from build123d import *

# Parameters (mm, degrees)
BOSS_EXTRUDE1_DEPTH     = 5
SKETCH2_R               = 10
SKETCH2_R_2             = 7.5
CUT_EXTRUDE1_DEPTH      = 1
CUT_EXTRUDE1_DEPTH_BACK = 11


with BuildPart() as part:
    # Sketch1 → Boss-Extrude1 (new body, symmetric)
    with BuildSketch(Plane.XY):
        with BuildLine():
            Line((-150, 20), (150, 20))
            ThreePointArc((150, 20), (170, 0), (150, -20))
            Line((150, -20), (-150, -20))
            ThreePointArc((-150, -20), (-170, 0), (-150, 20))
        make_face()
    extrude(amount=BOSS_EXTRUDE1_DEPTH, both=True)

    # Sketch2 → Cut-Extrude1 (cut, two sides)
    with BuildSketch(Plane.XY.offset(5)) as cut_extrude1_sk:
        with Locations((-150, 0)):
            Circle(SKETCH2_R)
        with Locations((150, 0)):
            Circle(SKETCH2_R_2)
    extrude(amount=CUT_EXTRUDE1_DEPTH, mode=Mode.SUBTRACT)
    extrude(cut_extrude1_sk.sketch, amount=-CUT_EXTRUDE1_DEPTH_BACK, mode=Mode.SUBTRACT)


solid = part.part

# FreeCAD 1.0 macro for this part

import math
import FreeCAD as App
import Part
import Sketcher
from FreeCAD import Vector
Q = App.Units.Quantity

doc = App.newDocument("Part")
params = doc.addObject("Spreadsheet::Sheet", "Params")
for row, (alias, value) in enumerate([
    ("sketch1_radius", "20 mm"),
    ("sketch1_width", "300 mm"),
    ("pad1_length", "10 mm"),
    ("sketch2_diameter", "20 mm"),
    ("sketch2_diameter2", "15 mm"),
], start=1):
    params.set(f"A{row}", alias)
    params.set(f"B{row}", "=" + value)
    params.setAlias(f"B{row}", alias)

body = doc.addObject("PartDesign::Body", "Body")

# Sketch on XY plane
sketch1 = doc.addObject("Sketcher::SketchObject", "Sketch")
body.addObject(sketch1)
sketch1.AttachmentSupport = (doc.XY_Plane, [""])
sketch1.MapMode = "FlatFace"
sketch1.addGeometry([
    Part.LineSegment(Vector(150, 20, 0), Vector(-150, 20, 0)),
    Part.ArcOfCircle(Part.Circle(Vector(-150, 0, 0), Vector(0, 0, 1), 20), math.radians(90), math.radians(270)),
    Part.LineSegment(Vector(-150, -20, 0), Vector(150, -20, 0)),
    Part.ArcOfCircle(Part.Circle(Vector(150, 0, 0), Vector(0, 0, 1), 20), math.radians(-90), math.radians(90)),
], False)
sketch1.addConstraint([
    Sketcher.Constraint("Tangent", 0, 2, 1, 1),
    Sketcher.Constraint("Tangent", 1, 2, 2, 1),
    Sketcher.Constraint("Tangent", 2, 2, 3, 1),
    Sketcher.Constraint("Tangent", 3, 2, 0, 1),
    Sketcher.Constraint("Horizontal", 0),
    Sketcher.Constraint("Horizontal", 2),
    Sketcher.Constraint("Symmetric", 1, 3, 3, 3, -1, 1),
    Sketcher.Constraint("Radius", 1, Q("20 mm")),
    Sketcher.Constraint("DistanceX", 0, 2, 0, 1, Q("300 mm")),
])
sketch1.setExpression("Constraints[7]", "Params.sketch1_radius")
sketch1.setExpression("Constraints[8]", "Params.sketch1_width")
pad1 = doc.addObject("PartDesign::Pad", "Pad")
body.addObject(pad1)
pad1.Profile = sketch1
pad1.setExpression("Length", "Params.pad1_length")
pad1.Midplane = True

# Sketch on XY plane
sketch2 = doc.addObject("Sketcher::SketchObject", "Sketch001")
body.addObject(sketch2)
sketch2.AttachmentSupport = (doc.XY_Plane, [""])
sketch2.MapMode = "FlatFace"
sketch2.AttachmentOffset = App.Placement(Vector(0, 0, 5), App.Rotation())
sketch2.addGeometry([
    Part.Circle(Vector(-150, 0, 0), Vector(0, 0, 1), 10),
    Part.Circle(Vector(150, 0, 0), Vector(0, 0, 1), 8),
], False)
sketch2.addConstraint([
    Sketcher.Constraint("Symmetric", 0, 3, 1, 3, -1, 1),
    Sketcher.Constraint("PointOnObject", 0, 3, -1),
    Sketcher.Constraint("Diameter", 0, Q("20 mm")),
    Sketcher.Constraint("Diameter", 1, Q("15 mm")),
    Sketcher.Constraint("DistanceX", 0, 3, -1, 1, Q("150 mm")),
])
sketch2.setExpression("Constraints[2]", "Params.sketch2_diameter")
sketch2.setExpression("Constraints[3]", "Params.sketch2_diameter2")
pocket1 = doc.addObject("PartDesign::Pocket", "Pocket")
body.addObject(pocket1)
pocket1.Profile = sketch2
pocket1.Type = "ThroughAll"
pocket1.Midplane = True

doc.recompute()
